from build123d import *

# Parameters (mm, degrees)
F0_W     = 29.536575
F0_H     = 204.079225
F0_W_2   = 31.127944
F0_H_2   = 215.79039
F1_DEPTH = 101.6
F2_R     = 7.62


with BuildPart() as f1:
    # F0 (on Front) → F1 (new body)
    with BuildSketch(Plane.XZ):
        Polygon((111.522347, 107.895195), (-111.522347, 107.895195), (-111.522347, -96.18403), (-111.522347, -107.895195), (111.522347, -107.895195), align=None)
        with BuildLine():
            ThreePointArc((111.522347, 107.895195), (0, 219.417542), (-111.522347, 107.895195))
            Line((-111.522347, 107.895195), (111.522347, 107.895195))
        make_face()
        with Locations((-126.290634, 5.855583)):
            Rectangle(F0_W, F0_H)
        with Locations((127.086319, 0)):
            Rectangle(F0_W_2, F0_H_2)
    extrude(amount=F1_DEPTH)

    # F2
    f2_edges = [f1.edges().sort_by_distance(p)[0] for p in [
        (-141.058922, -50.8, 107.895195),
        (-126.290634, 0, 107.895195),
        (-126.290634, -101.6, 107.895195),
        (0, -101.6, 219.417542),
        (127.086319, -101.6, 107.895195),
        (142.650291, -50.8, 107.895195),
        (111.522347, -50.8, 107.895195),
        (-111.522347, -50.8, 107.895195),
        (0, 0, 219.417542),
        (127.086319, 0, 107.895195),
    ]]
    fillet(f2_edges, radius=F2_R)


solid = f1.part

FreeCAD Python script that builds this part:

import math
import FreeCAD as App
import Part
import Sketcher

V = App.Vector


def edges_at(feature, points):
    """Names of the edges that pass closest to the given points."""
    edges = feature.Shape.Edges
    near = lambda p: min(range(len(edges)), key=lambda i: edges[i].distToShape(Part.Vertex(*p))[0])
    return sorted({f"Edge{near(p) + 1}" for p in points})

doc = App.newDocument("Part")
params = doc.addObject("Spreadsheet::Sheet", "Params")
for row, (alias, value) in enumerate([
    ("pad1_length", "4 in"),
    ("fillet_radius", "0.3 in"),
], start=1):
    params.set(f"A{row}", alias)
    params.set(f"B{row}", "=" + value)
    params.setAlias(f"B{row}", alias)

body = doc.addObject("PartDesign::Body", "Body")

# Sketch on XZ plane
sketch1 = body.newObject("Sketcher::SketchObject", "Sketch")
sketch1.AttachmentSupport = (doc.getObject("XZ_Plane"), [""])
sketch1.MapMode = "FlatFace"
sketch1.addGeometry([
    Part.ArcOfCircle(Part.Circle(V(0, 107.895195, 0), V(0, 0, 1), 111.522347), math.radians(0), math.radians(180)),  # 0
    Part.LineSegment(V(-111.522347, 107.895195, 0), V(-141.058921, 107.895195, 0)),  # 1
    Part.LineSegment(V(-141.058921, 107.895195, 0), V(-141.058921, -96.184029, 0)),  # 2
    Part.LineSegment(V(-141.058921, -96.184029, 0), V(-111.522347, -96.184029, 0)),  # 3
    Part.LineSegment(V(-111.522347, -96.184029, 0), V(-111.522347, -107.895195, 0)),  # 4
    Part.LineSegment(V(-111.522347, -107.895195, 0), V(142.650291, -107.895195, 0)),  # 5
    Part.LineSegment(V(142.650291, -107.895195, 0), V(142.650291, 107.895195, 0)),  # 6
    Part.LineSegment(V(142.650291, 107.895195, 0), V(111.522347, 107.895195, 0)),  # 7
], False)
sketch1.addConstraint([
    Sketcher.Constraint("Coincident", 0, 2, 1, 1),
    Sketcher.Constraint("Coincident", 1, 2, 2, 1),
    Sketcher.Constraint("Coincident", 2, 2, 3, 1),
    Sketcher.Constraint("Coincident", 3, 2, 4, 1),
    Sketcher.Constraint("Coincident", 4, 2, 5, 1),
    Sketcher.Constraint("Coincident", 5, 2, 6, 1),
    Sketcher.Constraint("Coincident", 6, 2, 7, 1),
    Sketcher.Constraint("Coincident", 7, 2, 0, 1),
    Sketcher.Constraint("Horizontal", 1),
    Sketcher.Constraint("Vertical", 2),
    Sketcher.Constraint("Horizontal", 3),
    Sketcher.Constraint("Vertical", 4),
    Sketcher.Constraint("Horizontal", 5),
    Sketcher.Constraint("Vertical", 6),
    Sketcher.Constraint("Horizontal", 7),
    Sketcher.Constraint("Symmetric", 4, 2, 7, 2, -1, 1),
    Sketcher.Constraint("Symmetric", 0, 2, 7, 2, -2),
    Sketcher.Constraint("Radius", 0, 111.522347),
    Sketcher.Constraint("DistanceX", 5, 1, 5, 2, 254.172638),
    Sketcher.Constraint("DistanceY", 6, 1, 6, 2, 215.79039),
    Sketcher.Constraint("DistanceX", 1, 2, 1, 1, 29.536575),
    Sketcher.Constraint("DistanceY", 2, 2, 2, 1, 204.079225),
    Sketcher.Constraint("DistanceY", 4, 2, 0, 3, 215.79039),
])
pad1 = body.newObject("PartDesign::Pad", "Pad")
pad1.Profile = sketch1
pad1.setExpression("Length", "Params.pad1_length")
doc.recompute()

fillet = body.newObject("PartDesign::Fillet", "Fillet")
fillet.Base = (pad1, edges_at(pad1, [
    (-141.059, -50.8, 107.895),
    (-126.291, 0, 107.895),
    (-126.291, -101.6, 107.895),
    (0, -101.6, 219.418),
    (127.086, -101.6, 107.895),
    (142.65, -50.8, 107.895),
    (111.522, -50.8, 107.895),
    (-111.522, -50.8, 107.895),
    (0, 0, 219.418),
    (127.086, 0, 107.895),
]))
fillet.setExpression("Radius", "Params.fillet_radius")

doc.recompute()
